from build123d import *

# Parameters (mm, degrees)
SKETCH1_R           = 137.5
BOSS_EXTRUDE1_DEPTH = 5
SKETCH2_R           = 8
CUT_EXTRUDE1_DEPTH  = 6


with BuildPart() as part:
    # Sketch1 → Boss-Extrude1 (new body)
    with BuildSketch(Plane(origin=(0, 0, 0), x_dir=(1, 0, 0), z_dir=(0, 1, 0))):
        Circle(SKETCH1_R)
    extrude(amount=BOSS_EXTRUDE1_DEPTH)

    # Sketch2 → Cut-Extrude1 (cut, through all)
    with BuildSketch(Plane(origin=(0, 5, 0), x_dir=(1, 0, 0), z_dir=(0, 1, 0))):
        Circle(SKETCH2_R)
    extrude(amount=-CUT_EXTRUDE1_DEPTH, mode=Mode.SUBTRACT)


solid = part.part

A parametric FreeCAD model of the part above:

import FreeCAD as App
import Part
import Sketcher

V = App.Vector
Q = App.Units.Quantity

doc = App.newDocument("Part")
body = doc.addObject("PartDesign::Body", "Body")

sketch1 = body.newObject("Sketcher::SketchObject", "Sketch")
sketch1.AttachmentSupport = (doc.getObject("XZ_Plane"), [""])
sketch1.MapMode = "FlatFace"
sketch1.addGeometry(Part.Circle(V(0, 0, 0), V(0, 0, 1), 137.5), False)
sketch1.addConstraint([
    Sketcher.Constraint("Coincident", 0, 3, -1, 1),
    Sketcher.Constraint("Diameter", 0, Q("275 mm")),
])
pad1 = body.newObject("PartDesign::Pad", "Pad")
pad1.Profile = sketch1
pad1.Length = 5
pad1.Reversed = True

sketch2 = body.newObject("Sketcher::SketchObject", "Sketch001")
sketch2.AttachmentSupport = (doc.getObject("XZ_Plane"), [""])
sketch2.MapMode = "FlatFace"
sketch2.AttachmentOffset = App.Placement(V(0, 0, -5), App.Rotation())
sketch2.addGeometry(Part.Circle(V(0, 0, 0), V(0, 0, 1), 8), False)
sketch2.addConstraint([
    Sketcher.Constraint("Coincident", 0, 3, -1, 1),
    Sketcher.Constraint("Diameter", 0, Q("16 mm")),
])
pocket1 = body.newObject("PartDesign::Pocket", "Pocket")
pocket1.Profile = sketch2
pocket1.Type = "ThroughAll"
pocket1.Reversed = True

doc.recompute()
